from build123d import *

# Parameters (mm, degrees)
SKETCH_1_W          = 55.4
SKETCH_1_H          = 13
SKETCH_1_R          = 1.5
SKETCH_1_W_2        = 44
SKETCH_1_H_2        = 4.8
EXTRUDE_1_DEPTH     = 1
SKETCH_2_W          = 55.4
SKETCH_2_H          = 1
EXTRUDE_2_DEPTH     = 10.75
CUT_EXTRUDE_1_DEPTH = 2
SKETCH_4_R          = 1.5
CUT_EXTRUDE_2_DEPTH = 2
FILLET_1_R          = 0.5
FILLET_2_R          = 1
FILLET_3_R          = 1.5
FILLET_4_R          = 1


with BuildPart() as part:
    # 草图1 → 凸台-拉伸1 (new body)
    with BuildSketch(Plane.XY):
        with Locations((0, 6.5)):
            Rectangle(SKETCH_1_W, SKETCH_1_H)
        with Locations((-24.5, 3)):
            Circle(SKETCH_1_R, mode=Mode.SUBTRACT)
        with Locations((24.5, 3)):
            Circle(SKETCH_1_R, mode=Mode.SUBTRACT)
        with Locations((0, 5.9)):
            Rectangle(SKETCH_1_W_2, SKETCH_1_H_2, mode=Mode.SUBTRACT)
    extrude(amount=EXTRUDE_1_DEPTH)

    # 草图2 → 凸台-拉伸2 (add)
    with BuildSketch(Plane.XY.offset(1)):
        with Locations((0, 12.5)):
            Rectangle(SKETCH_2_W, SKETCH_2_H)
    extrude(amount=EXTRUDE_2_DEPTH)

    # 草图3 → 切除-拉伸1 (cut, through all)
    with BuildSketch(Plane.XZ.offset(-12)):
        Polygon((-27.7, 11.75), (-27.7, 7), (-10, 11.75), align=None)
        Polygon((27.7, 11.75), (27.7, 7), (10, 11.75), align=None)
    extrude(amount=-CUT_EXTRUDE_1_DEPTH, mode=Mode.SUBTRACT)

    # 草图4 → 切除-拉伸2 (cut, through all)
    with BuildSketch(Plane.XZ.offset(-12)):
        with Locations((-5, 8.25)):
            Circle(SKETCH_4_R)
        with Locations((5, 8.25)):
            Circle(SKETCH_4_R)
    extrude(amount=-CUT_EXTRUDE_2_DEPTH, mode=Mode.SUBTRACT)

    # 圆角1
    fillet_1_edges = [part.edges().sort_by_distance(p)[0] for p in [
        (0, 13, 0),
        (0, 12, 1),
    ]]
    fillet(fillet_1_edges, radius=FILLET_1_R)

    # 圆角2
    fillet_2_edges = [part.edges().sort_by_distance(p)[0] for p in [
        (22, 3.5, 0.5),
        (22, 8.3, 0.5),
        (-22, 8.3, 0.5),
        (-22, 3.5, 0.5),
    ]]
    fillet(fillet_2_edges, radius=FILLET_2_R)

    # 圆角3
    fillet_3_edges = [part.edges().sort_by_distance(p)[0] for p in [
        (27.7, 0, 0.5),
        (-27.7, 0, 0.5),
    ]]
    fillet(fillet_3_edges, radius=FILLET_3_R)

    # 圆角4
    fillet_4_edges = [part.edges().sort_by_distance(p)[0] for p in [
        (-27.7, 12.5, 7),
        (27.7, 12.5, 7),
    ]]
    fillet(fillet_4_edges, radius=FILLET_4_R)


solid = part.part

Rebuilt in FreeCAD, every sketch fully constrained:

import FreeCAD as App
import Part
import Sketcher

V = App.Vector


def edges_at(feature, points):
    """Names of the edges that pass closest to the given points."""
    edges = feature.Shape.Edges
    near = lambda p: min(range(len(edges)), key=lambda i: edges[i].distToShape(Part.Vertex(*p))[0])
    return sorted({f"Edge{near(p) + 1}" for p in points})

doc = App.newDocument("Part")
params = doc.addObject("Spreadsheet::Sheet", "Params")
for row, (alias, value) in enumerate([
    ("sketch1_diameter", "3 mm"),
    ("sketch1_width", "44 mm"),
    ("sketch1_height", "13 mm"),
    ("sketch1_width2", "55.4 mm"),
    ("sketch1_height2", "4.8 mm"),
    ("pad1_length", "1 mm"),
    ("sketch2_height", "1 mm"),
    ("sketch2_width", "55.4 mm"),
    ("pad2_length", "10.75 mm"),
    ("sketch3_width", "17.7 mm"),
    ("sketch3_height", "4.75 mm"),
    ("sketch4_diameter", "3 mm"),
    ("fillet_radius", "0.5 mm"),
    ("fillet2_radius", "1 mm"),
    ("fillet3_radius", "1.5 mm"),
    ("fillet4_radius", "1 mm"),
], start=1):
    params.set(f"A{row}", alias)
    params.set(f"B{row}", "=" + value)
    params.setAlias(f"B{row}", alias)

body = doc.addObject("PartDesign::Body", "Body")

# Sketch on XY plane
sketch1 = doc.addObject("Sketcher::SketchObject", "Sketch")
body.addObject(sketch1)
sketch1.AttachmentSupport = (doc.XY_Plane, [""])
sketch1.MapMode = "FlatFace"
sketch1.addGeometry(Part.LineSegment(V(-27.7, 13, 0), V(-27.7, 0, 0)), False)
sketch1.addGeometry(Part.LineSegment(V(-27.7, 0, 0), V(27.7, 0, 0)), False)
sketch1.addGeometry(Part.LineSegment(V(27.7, 0, 0), V(27.7, 13, 0)), False)
sketch1.addGeometry(Part.LineSegment(V(27.7, 13, 0), V(-27.7, 13, 0)), False)
sketch1.addGeometry(Part.Circle(V(-24.5, 3, 0), V(0, 0, 1), 1.5), False)
sketch1.addGeometry(Part.Circle(V(24.5, 3, 0), V(0, 0, 1), 1.5), False)
sketch1.addGeometry(Part.LineSegment(V(22, 3.5, 0), V(-22, 3.5, 0)), False)
sketch1.addGeometry(Part.LineSegment(V(-22, 3.5, 0), V(-22, 8.3, 0)), False)
sketch1.addGeometry(Part.LineSegment(V(-22, 8.3, 0), V(22, 8.3, 0)), False)
sketch1.addGeometry(Part.LineSegment(V(22, 8.3, 0), V(22, 3.5, 0)), False)
sketch1.addConstraint(Sketcher.Constraint("Coincident", 0, 2, 1, 1))
sketch1.addConstraint(Sketcher.Constraint("Coincident", 1, 2, 2, 1))
sketch1.addConstraint(Sketcher.Constraint("Coincident", 2, 2, 3, 1))
sketch1.addConstraint(Sketcher.Constraint("Coincident", 3, 2, 0, 1))
sketch1.addConstraint(Sketcher.Constraint("Coincident", 6, 2, 7, 1))
sketch1.addConstraint(Sketcher.Constraint("Coincident", 7, 2, 8, 1))
sketch1.addConstraint(Sketcher.Constraint("Coincident", 8, 2, 9, 1))
sketch1.addConstraint(Sketcher.Constraint("Coincident", 9, 2, 6, 1))
sketch1.addConstraint(Sketcher.Constraint("Vertical", 0))
sketch1.addConstraint(Sketcher.Constraint("Horizontal", 1))
sketch1.addConstraint(Sketcher.Constraint("Vertical", 2))
sketch1.addConstraint(Sketcher.Constraint("Horizontal", 3))
sketch1.addConstraint(Sketcher.Constraint("Horizontal", 6))
sketch1.addConstraint(Sketcher.Constraint("Vertical", 7))
sketch1.addConstraint(Sketcher.Constraint("Horizontal", 8))
sketch1.addConstraint(Sketcher.Constraint("Vertical", 9))
sketch1.addConstraint(Sketcher.Constraint("Equal", 4, 5))
sketch1.addConstraint(Sketcher.Constraint("Symmetric", 0, 2, 1, 2, -1, 1))
sketch1.addConstraint(Sketcher.Constraint("Symmetric", 4, 3, 5, 3, -2))
sketch1.addConstraint(Sketcher.Constraint("Diameter", 4, 3.0))
sketch1.addConstraint(Sketcher.Constraint("DistanceX", 6, 2, 6, 1, 44.0))
sketch1.addConstraint(Sketcher.Constraint("DistanceY", 0, 2, 0, 1, 13.0))
sketch1.addConstraint(Sketcher.Constraint("DistanceX", 1, 1, 1, 2, 55.4))
sketch1.addConstraint(Sketcher.Constraint("DistanceY", 7, 1, 7, 2, 4.8))
sketch1.addConstraint(Sketcher.Constraint("DistanceY", -1, 1, 4, 3, 3.0))
sketch1.addConstraint(Sketcher.Constraint("DistanceX", 6, 2, -1, 1, 22.0))
sketch1.addConstraint(Sketcher.Constraint("DistanceX", 4, 3, 5, 3, 49.0))
sketch1.addConstraint(Sketcher.Constraint("DistanceY", -1, 1, 6, 2, 3.5))
sketch1.setExpression("Constraints[19]", "Params.sketch1_diameter")
sketch1.setExpression("Constraints[20]", "Params.sketch1_width")
sketch1.setExpression("Constraints[21]", "Params.sketch1_height")
sketch1.setExpression("Constraints[22]", "Params.sketch1_width2")
sketch1.setExpression("Constraints[23]", "Params.sketch1_height2")
pad1 = doc.addObject("PartDesign::Pad", "Pad")
body.addObject(pad1)
pad1.Profile = sketch1
pad1.setExpression("Length", "Params.pad1_length")

# Sketch on XY plane
sketch2 = doc.addObject("Sketcher::SketchObject", "Sketch001")
body.addObject(sketch2)
sketch2.AttachmentSupport = (doc.XY_Plane, [""])
sketch2.MapMode = "FlatFace"
sketch2.AttachmentOffset = App.Placement(V(0, 0, 1), App.Rotation())
sketch2.addGeometry(Part.LineSegment(V(-27.7, 13, 0), V(-27.7, 12, 0)), False)
sketch2.addGeometry(Part.LineSegment(V(-27.7, 12, 0), V(27.7, 12, 0)), False)
sketch2.addGeometry(Part.LineSegment(V(27.7, 12, 0), V(27.7, 13, 0)), False)
sketch2.addGeometry(Part.LineSegment(V(27.7, 13, 0), V(-27.7, 13, 0)), False)
sketch2.addConstraint(Sketcher.Constraint("Coincident", 0, 2, 1, 1))
sketch2.addConstraint(Sketcher.Constraint("Coincident", 1, 2, 2, 1))
sketch2.addConstraint(Sketcher.Constraint("Coincident", 2, 2, 3, 1))
sketch2.addConstraint(Sketcher.Constraint("Coincident", 3, 2, 0, 1))
sketch2.addConstraint(Sketcher.Constraint("Vertical", 0))
sketch2.addConstraint(Sketcher.Constraint("Horizontal", 1))
sketch2.addConstraint(Sketcher.Constraint("Vertical", 2))
sketch2.addConstraint(Sketcher.Constraint("Horizontal", 3))
sketch2.addConstraint(Sketcher.Constraint("DistanceY", 0, 2, 0, 1, 1.0))
sketch2.addConstraint(Sketcher.Constraint("DistanceX", 1, 1, 1, 2, 55.4))
sketch2.addConstraint(Sketcher.Constraint("DistanceY", -1, 1, 0, 2, 12.0))
sketch2.addConstraint(Sketcher.Constraint("DistanceX", 0, 2, -1, 1, 27.7))
sketch2.setExpression("Constraints[8]", "Params.sketch2_height")
sketch2.setExpression("Constraints[9]", "Params.sketch2_width")
pad2 = doc.addObject("PartDesign::Pad", "Pad001")
body.addObject(pad2)
pad2.Profile = sketch2
pad2.setExpression("Length", "Params.pad2_length")

# Sketch on XZ plane
sketch3 = doc.addObject("Sketcher::SketchObject", "Sketch002")
body.addObject(sketch3)
sketch3.AttachmentSupport = (doc.XZ_Plane, [""])
sketch3.MapMode = "FlatFace"
sketch3.AttachmentOffset = App.Placement(V(0, 0, -12), App.Rotation())
sketch3.addGeometry(Part.LineSegment(V(-27.7, 11.75, 0), V(-27.7, 7, 0)), False)
sketch3.addGeometry(Part.LineSegment(V(-27.7, 7, 0), V(-10, 11.75, 0)), False)
sketch3.addGeometry(Part.LineSegment(V(-10, 11.75, 0), V(-27.7, 11.75, 0)), False)
sketch3.addGeometry(Part.LineSegment(V(27.7, 7, 0), V(27.7, 11.75, 0)), False)
sketch3.addGeometry(Part.LineSegment(V(27.7, 11.75, 0), V(10, 11.75, 0)), False)
sketch3.addGeometry(Part.LineSegment(V(10, 11.75, 0), V(27.7, 7, 0)), False)
sketch3.addConstraint(Sketcher.Constraint("Coincident", 0, 2, 1, 1))
sketch3.addConstraint(Sketcher.Constraint("Coincident", 1, 2, 2, 1))
sketch3.addConstraint(Sketcher.Constraint("Coincident", 2, 2, 0, 1))
sketch3.addConstraint(Sketcher.Constraint("Coincident", 3, 2, 4, 1))
sketch3.addConstraint(Sketcher.Constraint("Coincident", 4, 2, 5, 1))
sketch3.addConstraint(Sketcher.Constraint("Coincident", 5, 2, 3, 1))
sketch3.addConstraint(Sketcher.Constraint("Vertical", 0))
sketch3.addConstraint(Sketcher.Constraint("Horizontal", 2))
sketch3.addConstraint(Sketcher.Constraint("Vertical", 3))
sketch3.addConstraint(Sketcher.Constraint("Horizontal", 4))
sketch3.addConstraint(Sketcher.Constraint("Symmetric", 2, 2, 3, 2, -2))
sketch3.addConstraint(Sketcher.Constraint("Horizontal", 0, 2, 5, 2))
sketch3.addConstraint(Sketcher.Constraint("Equal", 2, 4))
sketch3.addConstraint(Sketcher.Constraint("DistanceX", 2, 2, 2, 1, 17.7))
sketch3.addConstraint(Sketcher.Constraint("DistanceY", -1, 1, 0, 2, 7.0))
sketch3.addConstraint(Sketcher.Constraint("DistanceX", 1, 2, -1, 1, 10.0))
sketch3.addConstraint(Sketcher.Constraint("DistanceY", 0, 2, 0, 1, 4.75))
sketch3.setExpression("Constraints[13]", "Params.sketch3_width")
sketch3.setExpression("Constraints[16]", "Params.sketch3_height")
pocket1 = doc.addObject("PartDesign::Pocket", "Pocket")
body.addObject(pocket1)
pocket1.Profile = sketch3
pocket1.Type = "ThroughAll"

# Sketch on XZ plane
sketch4 = doc.addObject("Sketcher::SketchObject", "Sketch003")
body.addObject(sketch4)
sketch4.AttachmentSupport = (doc.XZ_Plane, [""])
sketch4.MapMode = "FlatFace"
sketch4.AttachmentOffset = App.Placement(V(0, 0, -12), App.Rotation())
sketch4.addGeometry(Part.Circle(V(-5, 8.25, 0), V(0, 0, 1), 1.5), False)
sketch4.addGeometry(Part.Circle(V(5, 8.25, 0), V(0, 0, 1), 1.5), False)
sketch4.addConstraint(Sketcher.Constraint("Equal", 0, 1))
sketch4.addConstraint(Sketcher.Constraint("Symmetric", 0, 3, 1, 3, -2))
sketch4.addConstraint(Sketcher.Constraint("Diameter", 0, 3.0))
sketch4.addConstraint(Sketcher.Constraint("DistanceX", 0, 3, -1, 1, 5.0))
sketch4.addConstraint(Sketcher.Constraint("DistanceY", -1, 1, 0, 3, 8.25))
sketch4.setExpression("Constraints[2]", "Params.sketch4_diameter")
pocket2 = doc.addObject("PartDesign::Pocket", "Pocket001")
body.addObject(pocket2)
pocket2.Profile = sketch4
pocket2.Type = "ThroughAll"
doc.recompute()

fillet = doc.addObject("PartDesign::Fillet", "Fillet")
body.addObject(fillet)
fillet.Base = (pocket2, edges_at(pocket2, [(0, 13, 0), (0, 12, 1)]))
fillet.setExpression("Radius", "Params.fillet_radius")
doc.recompute()

fillet2 = doc.addObject("PartDesign::Fillet", "Fillet001")
body.addObject(fillet2)
fillet2.Base = (fillet, edges_at(fillet, [
    (22, 3.5, 0.5),
    (22, 8.3, 0.5),
    (-22, 8.3, 0.5),
    (-22, 3.5, 0.5),
]))
fillet2.setExpression("Radius", "Params.fillet2_radius")
doc.recompute()

fillet3 = doc.addObject("PartDesign::Fillet", "Fillet002")
body.addObject(fillet3)
fillet3.Base = (fillet2, edges_at(fillet2, [(27.7, 0, 0.5), (-27.7, 0, 0.5)]))
fillet3.setExpression("Radius", "Params.fillet3_radius")
doc.recompute()

fillet4 = doc.addObject("PartDesign::Fillet", "Fillet003")
body.addObject(fillet4)
fillet4.Base = (fillet3, edges_at(fillet3, [(-27.7, 12.5, 7), (27.7, 12.5, 7)]))
fillet4.setExpression("Radius", "Params.fillet4_radius")

doc.recompute()
